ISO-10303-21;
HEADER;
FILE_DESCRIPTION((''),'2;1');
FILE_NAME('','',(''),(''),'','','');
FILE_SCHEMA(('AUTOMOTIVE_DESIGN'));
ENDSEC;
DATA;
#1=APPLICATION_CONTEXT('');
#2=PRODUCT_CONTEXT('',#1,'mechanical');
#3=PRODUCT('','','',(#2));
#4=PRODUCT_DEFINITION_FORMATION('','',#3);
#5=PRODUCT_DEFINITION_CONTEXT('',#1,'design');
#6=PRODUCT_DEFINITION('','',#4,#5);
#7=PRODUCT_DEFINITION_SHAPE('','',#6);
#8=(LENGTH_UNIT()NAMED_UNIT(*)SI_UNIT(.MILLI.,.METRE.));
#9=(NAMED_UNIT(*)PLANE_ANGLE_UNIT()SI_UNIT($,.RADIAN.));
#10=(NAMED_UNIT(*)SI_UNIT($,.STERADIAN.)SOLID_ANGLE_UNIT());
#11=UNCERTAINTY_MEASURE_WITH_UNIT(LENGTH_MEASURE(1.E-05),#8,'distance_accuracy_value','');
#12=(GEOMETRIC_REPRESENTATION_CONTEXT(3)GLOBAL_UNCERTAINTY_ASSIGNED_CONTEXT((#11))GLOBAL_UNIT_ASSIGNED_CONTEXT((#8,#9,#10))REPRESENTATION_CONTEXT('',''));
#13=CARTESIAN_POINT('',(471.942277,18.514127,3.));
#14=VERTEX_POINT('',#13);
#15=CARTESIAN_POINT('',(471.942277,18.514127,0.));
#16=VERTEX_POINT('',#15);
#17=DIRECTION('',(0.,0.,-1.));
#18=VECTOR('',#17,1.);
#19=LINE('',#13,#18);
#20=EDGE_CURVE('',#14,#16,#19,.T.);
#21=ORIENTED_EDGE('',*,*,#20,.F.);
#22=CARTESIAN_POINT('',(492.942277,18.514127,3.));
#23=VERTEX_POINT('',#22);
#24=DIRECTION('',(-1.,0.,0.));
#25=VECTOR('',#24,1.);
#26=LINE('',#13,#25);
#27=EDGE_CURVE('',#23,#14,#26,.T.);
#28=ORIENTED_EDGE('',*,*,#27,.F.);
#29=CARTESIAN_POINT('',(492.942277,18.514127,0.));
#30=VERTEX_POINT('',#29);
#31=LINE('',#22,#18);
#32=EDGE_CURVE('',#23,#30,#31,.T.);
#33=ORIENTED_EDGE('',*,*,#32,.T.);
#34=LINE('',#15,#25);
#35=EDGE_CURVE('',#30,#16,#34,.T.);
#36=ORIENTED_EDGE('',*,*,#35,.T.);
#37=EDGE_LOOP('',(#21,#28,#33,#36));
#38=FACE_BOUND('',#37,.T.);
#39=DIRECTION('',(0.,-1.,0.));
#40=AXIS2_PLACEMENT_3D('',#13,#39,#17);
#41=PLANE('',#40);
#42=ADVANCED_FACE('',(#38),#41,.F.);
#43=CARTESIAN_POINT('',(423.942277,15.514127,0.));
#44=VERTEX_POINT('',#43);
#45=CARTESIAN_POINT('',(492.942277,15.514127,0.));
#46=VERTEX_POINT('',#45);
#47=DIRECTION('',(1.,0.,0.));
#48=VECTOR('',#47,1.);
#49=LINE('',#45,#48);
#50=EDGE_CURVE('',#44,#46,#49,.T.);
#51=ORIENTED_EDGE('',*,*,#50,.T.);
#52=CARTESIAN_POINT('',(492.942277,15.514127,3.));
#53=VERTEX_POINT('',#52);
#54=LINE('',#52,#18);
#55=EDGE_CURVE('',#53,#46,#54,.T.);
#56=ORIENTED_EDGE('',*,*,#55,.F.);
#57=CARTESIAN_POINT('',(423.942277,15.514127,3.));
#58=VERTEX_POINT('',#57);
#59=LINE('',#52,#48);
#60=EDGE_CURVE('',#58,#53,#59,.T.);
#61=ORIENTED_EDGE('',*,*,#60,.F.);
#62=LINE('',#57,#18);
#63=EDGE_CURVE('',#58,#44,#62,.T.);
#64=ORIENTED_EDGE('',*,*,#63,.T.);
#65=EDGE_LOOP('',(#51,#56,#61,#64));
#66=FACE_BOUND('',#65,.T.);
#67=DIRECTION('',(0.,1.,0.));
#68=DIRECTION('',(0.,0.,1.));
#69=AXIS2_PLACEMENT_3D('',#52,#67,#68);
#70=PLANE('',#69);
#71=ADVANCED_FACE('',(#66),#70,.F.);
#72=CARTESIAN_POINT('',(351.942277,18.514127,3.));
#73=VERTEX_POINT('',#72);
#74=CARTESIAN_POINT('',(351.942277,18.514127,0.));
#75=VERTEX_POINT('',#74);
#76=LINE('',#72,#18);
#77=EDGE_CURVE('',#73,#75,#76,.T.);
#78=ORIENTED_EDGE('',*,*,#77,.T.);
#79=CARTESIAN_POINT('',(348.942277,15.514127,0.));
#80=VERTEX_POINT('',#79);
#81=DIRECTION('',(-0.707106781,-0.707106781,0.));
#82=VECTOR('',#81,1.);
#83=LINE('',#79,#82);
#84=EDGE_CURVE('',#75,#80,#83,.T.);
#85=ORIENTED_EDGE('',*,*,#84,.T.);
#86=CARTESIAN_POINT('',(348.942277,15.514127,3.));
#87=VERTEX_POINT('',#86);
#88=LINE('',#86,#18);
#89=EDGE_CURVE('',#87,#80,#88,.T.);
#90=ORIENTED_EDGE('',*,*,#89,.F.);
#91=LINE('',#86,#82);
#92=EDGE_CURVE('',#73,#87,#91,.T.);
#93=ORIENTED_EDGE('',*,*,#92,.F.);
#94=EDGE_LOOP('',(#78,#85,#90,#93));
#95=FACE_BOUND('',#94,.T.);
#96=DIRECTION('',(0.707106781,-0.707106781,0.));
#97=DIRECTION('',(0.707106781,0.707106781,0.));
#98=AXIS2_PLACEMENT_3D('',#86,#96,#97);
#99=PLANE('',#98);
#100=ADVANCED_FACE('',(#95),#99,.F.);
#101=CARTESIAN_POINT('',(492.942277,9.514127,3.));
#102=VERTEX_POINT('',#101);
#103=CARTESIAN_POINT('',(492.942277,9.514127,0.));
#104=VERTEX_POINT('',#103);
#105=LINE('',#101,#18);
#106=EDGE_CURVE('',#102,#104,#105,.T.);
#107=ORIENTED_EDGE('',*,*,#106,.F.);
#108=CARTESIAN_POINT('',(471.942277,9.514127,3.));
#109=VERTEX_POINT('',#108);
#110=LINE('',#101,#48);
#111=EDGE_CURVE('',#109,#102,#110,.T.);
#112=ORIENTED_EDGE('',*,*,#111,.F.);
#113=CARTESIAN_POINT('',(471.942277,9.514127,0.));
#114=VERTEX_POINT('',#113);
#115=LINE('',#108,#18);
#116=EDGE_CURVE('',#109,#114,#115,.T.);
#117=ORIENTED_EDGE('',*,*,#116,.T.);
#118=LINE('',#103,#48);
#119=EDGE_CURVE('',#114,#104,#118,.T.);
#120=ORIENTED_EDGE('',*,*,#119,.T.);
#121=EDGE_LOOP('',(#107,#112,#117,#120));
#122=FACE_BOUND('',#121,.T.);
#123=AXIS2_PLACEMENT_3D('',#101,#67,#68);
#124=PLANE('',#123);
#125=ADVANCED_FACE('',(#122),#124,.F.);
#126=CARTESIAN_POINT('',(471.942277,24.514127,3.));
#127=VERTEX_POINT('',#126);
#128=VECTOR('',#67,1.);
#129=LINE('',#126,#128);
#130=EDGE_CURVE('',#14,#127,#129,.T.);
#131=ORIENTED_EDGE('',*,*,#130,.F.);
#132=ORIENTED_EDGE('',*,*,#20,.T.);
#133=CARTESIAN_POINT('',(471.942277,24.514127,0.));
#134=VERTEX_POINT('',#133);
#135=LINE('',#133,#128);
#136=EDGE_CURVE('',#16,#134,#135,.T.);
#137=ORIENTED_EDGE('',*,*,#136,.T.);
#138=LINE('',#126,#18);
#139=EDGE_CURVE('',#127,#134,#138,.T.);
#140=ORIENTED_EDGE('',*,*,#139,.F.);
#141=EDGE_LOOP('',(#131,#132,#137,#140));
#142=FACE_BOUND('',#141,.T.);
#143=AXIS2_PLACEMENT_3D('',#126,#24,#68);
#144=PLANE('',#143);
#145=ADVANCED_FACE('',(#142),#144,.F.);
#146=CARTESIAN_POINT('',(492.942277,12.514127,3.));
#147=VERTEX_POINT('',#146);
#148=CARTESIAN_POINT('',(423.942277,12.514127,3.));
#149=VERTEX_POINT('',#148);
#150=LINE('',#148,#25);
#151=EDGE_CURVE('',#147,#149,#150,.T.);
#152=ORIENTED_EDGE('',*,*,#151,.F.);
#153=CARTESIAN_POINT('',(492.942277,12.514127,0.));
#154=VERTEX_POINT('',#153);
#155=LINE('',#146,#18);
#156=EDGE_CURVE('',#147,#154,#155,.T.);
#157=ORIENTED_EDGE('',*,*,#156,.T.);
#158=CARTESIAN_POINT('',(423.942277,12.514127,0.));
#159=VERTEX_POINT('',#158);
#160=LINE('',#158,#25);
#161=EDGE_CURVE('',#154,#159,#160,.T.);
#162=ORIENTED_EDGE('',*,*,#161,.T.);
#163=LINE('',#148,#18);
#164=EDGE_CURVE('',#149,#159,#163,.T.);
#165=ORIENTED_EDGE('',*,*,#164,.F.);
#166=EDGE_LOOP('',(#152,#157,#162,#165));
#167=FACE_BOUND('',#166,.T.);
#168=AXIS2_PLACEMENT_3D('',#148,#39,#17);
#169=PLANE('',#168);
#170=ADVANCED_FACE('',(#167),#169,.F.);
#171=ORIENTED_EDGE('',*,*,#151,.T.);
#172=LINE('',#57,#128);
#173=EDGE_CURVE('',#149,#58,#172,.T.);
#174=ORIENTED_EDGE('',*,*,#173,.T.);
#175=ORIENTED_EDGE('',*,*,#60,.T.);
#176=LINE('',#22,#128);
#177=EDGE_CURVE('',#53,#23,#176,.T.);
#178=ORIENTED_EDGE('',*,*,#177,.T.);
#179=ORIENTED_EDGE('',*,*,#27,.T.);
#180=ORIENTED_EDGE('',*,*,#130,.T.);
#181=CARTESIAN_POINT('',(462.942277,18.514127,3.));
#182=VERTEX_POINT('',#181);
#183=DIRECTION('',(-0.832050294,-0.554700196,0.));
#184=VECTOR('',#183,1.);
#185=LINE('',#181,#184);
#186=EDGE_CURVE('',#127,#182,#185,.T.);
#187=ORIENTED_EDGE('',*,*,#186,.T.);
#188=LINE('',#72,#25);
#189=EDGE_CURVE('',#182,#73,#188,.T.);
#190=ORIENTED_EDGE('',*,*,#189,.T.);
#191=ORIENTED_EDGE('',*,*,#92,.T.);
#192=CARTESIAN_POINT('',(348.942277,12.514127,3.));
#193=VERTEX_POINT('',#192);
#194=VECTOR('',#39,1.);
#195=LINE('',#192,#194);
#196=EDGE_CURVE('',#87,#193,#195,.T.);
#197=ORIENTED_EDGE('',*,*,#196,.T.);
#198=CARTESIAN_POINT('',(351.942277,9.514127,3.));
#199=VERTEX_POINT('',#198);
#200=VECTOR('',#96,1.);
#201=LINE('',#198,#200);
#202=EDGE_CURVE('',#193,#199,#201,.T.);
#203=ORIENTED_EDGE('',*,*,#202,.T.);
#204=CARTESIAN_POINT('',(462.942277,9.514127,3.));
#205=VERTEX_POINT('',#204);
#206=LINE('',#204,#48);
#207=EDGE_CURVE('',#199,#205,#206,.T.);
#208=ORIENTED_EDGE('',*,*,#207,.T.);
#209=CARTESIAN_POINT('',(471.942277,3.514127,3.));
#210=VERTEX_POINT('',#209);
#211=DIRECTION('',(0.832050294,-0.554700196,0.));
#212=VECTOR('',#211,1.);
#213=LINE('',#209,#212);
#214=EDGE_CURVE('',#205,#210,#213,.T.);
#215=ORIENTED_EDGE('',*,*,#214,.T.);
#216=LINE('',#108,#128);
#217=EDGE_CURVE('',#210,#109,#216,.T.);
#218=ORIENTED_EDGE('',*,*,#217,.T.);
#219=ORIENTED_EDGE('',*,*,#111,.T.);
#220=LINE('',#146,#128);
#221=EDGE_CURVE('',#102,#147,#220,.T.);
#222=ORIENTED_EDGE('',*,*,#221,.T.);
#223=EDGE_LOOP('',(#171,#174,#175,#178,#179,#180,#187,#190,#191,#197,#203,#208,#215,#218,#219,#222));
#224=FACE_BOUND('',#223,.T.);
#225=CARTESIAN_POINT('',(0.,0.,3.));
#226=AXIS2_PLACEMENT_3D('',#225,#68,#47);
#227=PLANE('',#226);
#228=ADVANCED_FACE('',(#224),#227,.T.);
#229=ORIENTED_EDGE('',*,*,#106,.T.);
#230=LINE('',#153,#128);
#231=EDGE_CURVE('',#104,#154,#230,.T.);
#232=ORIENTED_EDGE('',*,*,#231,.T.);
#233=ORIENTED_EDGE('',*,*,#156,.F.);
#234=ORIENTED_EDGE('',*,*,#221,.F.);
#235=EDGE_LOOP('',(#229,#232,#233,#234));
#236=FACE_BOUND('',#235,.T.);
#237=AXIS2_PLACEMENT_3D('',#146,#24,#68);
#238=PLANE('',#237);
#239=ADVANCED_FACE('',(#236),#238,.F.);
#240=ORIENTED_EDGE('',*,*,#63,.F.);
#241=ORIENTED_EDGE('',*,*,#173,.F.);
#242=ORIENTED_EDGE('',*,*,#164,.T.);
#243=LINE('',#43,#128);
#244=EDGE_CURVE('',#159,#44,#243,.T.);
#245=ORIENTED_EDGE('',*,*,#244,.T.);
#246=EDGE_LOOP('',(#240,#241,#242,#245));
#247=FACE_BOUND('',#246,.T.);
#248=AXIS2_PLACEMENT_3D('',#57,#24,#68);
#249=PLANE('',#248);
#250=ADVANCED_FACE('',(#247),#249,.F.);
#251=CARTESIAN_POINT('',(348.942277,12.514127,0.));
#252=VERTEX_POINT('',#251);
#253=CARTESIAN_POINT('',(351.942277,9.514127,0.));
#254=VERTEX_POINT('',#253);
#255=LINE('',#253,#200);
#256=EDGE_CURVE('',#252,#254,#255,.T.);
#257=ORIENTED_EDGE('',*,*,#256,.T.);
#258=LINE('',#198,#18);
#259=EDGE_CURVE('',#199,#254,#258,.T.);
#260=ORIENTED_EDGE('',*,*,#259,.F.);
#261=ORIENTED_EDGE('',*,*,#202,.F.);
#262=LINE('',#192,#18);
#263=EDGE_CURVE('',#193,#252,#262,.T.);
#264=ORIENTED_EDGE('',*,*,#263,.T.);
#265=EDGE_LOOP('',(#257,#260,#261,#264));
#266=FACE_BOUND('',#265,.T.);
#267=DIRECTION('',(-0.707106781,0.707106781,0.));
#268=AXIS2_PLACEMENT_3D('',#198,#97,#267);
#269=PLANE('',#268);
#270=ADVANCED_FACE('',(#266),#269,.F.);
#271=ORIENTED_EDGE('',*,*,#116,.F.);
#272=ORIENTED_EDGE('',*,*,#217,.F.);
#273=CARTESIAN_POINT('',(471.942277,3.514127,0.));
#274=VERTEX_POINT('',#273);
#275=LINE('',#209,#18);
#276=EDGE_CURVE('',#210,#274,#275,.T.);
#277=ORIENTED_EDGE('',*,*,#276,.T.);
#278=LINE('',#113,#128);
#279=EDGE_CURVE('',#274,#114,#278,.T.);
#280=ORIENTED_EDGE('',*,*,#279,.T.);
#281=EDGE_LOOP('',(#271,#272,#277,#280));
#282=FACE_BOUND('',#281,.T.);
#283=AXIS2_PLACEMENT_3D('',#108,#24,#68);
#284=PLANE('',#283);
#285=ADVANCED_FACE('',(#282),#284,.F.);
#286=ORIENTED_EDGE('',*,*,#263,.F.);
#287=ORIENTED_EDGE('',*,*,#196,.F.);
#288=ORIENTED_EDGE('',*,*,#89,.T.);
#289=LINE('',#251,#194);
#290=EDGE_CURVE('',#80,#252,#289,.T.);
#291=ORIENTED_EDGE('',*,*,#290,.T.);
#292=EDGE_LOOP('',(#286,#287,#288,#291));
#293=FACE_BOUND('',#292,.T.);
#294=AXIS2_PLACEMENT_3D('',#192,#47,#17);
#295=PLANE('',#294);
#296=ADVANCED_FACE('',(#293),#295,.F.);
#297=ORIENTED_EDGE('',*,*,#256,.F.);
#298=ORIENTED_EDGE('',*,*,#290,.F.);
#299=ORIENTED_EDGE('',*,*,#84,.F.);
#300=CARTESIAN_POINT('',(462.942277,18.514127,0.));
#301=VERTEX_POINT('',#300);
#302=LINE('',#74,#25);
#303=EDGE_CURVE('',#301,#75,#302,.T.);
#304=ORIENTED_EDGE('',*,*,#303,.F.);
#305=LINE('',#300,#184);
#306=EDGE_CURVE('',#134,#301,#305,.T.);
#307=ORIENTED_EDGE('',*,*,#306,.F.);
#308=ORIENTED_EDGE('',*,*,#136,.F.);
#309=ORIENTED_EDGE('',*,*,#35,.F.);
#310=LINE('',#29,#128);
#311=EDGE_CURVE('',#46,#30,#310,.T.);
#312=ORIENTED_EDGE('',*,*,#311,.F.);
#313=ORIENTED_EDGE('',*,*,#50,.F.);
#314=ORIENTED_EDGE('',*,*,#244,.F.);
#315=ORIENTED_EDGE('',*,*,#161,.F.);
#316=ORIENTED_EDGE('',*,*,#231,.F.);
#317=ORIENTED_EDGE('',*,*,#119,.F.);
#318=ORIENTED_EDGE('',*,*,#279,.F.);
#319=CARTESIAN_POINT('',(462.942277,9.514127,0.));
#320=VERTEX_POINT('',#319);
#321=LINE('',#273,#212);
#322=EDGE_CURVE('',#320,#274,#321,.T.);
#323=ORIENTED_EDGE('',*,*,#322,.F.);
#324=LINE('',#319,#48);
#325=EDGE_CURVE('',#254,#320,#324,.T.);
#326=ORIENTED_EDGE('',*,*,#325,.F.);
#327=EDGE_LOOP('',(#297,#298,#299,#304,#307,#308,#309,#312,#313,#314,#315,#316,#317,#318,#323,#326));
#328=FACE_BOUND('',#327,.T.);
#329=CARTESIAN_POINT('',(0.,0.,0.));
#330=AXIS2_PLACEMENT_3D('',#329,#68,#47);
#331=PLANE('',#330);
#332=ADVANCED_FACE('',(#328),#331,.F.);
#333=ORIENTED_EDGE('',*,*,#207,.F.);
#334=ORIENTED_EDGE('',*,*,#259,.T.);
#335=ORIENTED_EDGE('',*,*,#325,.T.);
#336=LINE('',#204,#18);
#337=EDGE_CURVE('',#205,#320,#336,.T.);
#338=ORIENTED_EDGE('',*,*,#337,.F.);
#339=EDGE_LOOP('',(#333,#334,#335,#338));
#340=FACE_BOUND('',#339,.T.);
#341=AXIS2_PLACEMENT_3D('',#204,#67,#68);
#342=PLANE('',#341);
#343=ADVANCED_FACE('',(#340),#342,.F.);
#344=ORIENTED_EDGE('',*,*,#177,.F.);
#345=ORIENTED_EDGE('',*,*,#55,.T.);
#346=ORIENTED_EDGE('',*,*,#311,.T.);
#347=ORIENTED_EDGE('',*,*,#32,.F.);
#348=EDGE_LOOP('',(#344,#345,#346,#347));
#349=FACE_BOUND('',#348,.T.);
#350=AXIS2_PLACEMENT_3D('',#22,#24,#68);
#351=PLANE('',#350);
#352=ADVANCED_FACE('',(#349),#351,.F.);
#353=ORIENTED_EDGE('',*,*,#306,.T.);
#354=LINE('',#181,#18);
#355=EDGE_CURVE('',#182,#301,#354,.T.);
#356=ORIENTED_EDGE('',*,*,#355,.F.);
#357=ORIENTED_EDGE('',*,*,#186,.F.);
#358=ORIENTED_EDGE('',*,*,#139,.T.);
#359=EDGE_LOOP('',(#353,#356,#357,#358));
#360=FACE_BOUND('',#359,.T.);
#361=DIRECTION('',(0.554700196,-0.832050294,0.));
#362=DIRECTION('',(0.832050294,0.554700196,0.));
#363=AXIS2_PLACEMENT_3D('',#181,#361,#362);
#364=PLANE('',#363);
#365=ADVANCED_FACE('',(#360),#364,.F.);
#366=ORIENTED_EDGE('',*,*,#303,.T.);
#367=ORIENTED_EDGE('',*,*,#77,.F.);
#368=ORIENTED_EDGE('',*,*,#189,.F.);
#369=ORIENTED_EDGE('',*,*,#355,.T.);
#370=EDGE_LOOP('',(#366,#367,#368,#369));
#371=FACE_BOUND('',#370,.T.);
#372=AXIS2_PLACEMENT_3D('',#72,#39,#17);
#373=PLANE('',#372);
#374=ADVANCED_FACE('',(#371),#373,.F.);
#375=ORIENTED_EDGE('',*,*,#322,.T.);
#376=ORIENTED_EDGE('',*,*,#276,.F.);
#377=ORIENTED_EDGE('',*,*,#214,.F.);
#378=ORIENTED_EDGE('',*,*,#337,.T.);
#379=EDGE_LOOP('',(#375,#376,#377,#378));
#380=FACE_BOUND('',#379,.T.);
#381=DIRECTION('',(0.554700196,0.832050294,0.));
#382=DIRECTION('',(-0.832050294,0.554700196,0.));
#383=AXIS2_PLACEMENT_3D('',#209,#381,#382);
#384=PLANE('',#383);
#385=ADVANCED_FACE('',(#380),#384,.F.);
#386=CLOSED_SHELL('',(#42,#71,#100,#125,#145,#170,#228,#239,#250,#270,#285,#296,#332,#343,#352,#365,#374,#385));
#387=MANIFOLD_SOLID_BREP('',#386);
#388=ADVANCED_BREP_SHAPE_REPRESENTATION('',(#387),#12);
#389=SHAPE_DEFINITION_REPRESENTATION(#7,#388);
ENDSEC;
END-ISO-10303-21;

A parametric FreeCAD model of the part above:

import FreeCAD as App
import Part
import Sketcher

doc = App.newDocument("Part")
body = doc.addObject("PartDesign::Body", "Body")

# Sketch on XY plane
sketch1 = doc.addObject("Sketcher::SketchObject", "Sketch")
body.addObject(sketch1)
sketch1.AttachmentSupport = (doc.XY_Plane, [""])
sketch1.MapMode = "FlatFace"
sketch1.addGeometry([
    Part.LineSegment(App.Vector(471.942277, 3.514127, 0), App.Vector(471.942277, 9.514127, 0)),  # 0
    Part.LineSegment(App.Vector(471.942277, 9.514127, 0), App.Vector(492.942277, 9.514127, 0)),  # 1
    Part.LineSegment(App.Vector(492.942277, 9.514127, 0), App.Vector(492.942277, 12.514127, 0)),  # 2
    Part.LineSegment(App.Vector(492.942277, 12.514127, 0), App.Vector(423.942277, 12.514127, 0)),  # 3
    Part.LineSegment(App.Vector(423.942277, 12.514127, 0), App.Vector(423.942277, 15.514127, 0)),  # 4
    Part.LineSegment(App.Vector(423.942277, 15.514127, 0), App.Vector(492.942277, 15.514127, 0)),  # 5
    Part.LineSegment(App.Vector(492.942277, 15.514127, 0), App.Vector(492.942277, 18.514127, 0)),  # 6
    Part.LineSegment(App.Vector(492.942277, 18.514127, 0), App.Vector(471.942277, 18.514127, 0)),  # 7
    Part.LineSegment(App.Vector(471.942277, 18.514127, 0), App.Vector(471.942277, 24.514127, 0)),  # 8
    Part.LineSegment(App.Vector(471.942277, 24.514127, 0), App.Vector(462.942277, 18.514127, 0)),  # 9
    Part.LineSegment(App.Vector(462.942277, 18.514127, 0), App.Vector(351.942277, 18.514127, 0)),  # 10
    Part.LineSegment(App.Vector(351.942277, 18.514127, 0), App.Vector(348.942277, 15.514127, 0)),  # 11
    Part.LineSegment(App.Vector(348.942277, 15.514127, 0), App.Vector(348.942277, 12.514127, 0)),  # 12
    Part.LineSegment(App.Vector(348.942277, 12.514127, 0), App.Vector(351.942277, 9.514127, 0)),  # 13
    Part.LineSegment(App.Vector(351.942277, 9.514127, 0), App.Vector(462.942277, 9.514127, 0)),  # 14
    Part.LineSegment(App.Vector(462.942277, 9.514127, 0), App.Vector(471.942277, 3.514127, 0)),  # 15
], False)
sketch1.addConstraint([
    Sketcher.Constraint("Coincident", 0, 2, 1, 1),
    Sketcher.Constraint("Coincident", 1, 2, 2, 1),
    Sketcher.Constraint("Coincident", 2, 2, 3, 1),
    Sketcher.Constraint("Coincident", 3, 2, 4, 1),
    Sketcher.Constraint("Coincident", 4, 2, 5, 1),
    Sketcher.Constraint("Coincident", 5, 2, 6, 1),
    Sketcher.Constraint("Coincident", 6, 2, 7, 1),
    Sketcher.Constraint("Coincident", 7, 2, 8, 1),
    Sketcher.Constraint("Coincident", 8, 2, 9, 1),
    Sketcher.Constraint("Coincident", 9, 2, 10, 1),
    Sketcher.Constraint("Coincident", 10, 2, 11, 1),
    Sketcher.Constraint("Coincident", 11, 2, 12, 1),
    Sketcher.Constraint("Coincident", 12, 2, 13, 1),
    Sketcher.Constraint("Coincident", 13, 2, 14, 1),
    Sketcher.Constraint("Coincident", 14, 2, 15, 1),
    Sketcher.Constraint("Coincident", 15, 2, 0, 1),
    Sketcher.Constraint("Vertical", 0),
    Sketcher.Constraint("Horizontal", 1),
    Sketcher.Constraint("Vertical", 2),
    Sketcher.Constraint("Horizontal", 3),
    Sketcher.Constraint("Vertical", 4),
    Sketcher.Constraint("Horizontal", 5),
    Sketcher.Constraint("Vertical", 6),
    Sketcher.Constraint("Horizontal", 7),
    Sketcher.Constraint("Vertical", 8),
    Sketcher.Constraint("Horizontal", 10),
    Sketcher.Constraint("Vertical", 12),
    Sketcher.Constraint("Horizontal", 14),
    Sketcher.Constraint("Perpendicular", 11, 13),
    Sketcher.Constraint("Horizontal", 7, 2, 9, 2),
    Sketcher.Constraint("Horizontal", 5, 2, 11, 2),
    Sketcher.Constraint("Horizontal", 3, 2, 12, 2),
    Sketcher.Constraint("Horizontal", 1, 2, 13, 2),
    Sketcher.Constraint("Vertical", 2, 2, 5, 2),
    Sketcher.Constraint("Vertical", 0, 2, 7, 2),
    Sketcher.Constraint("Vertical", 10, 2, 13, 2),
    Sketcher.Constraint("Vertical", 9, 2, 14, 2),
    Sketcher.Constraint("Equal", 2, 4),
    Sketcher.Constraint("Equal", 4, 6),
    Sketcher.Constraint("Equal", 0, 8),
    Sketcher.Constraint("DistanceX", 1, 1, 1, 2, 21.0),
    Sketcher.Constraint("DistanceX", 3, 2, 3, 1, 69.0),
    Sketcher.Constraint("DistanceX", 10, 2, 10, 1, 111.0),
    Sketcher.Constraint("DistanceY", 0, 1, 0, 2, 6.0),
    Sketcher.Constraint("DistanceY", 2, 1, 2, 2, 3.0),
    Sketcher.Constraint("DistanceX", 9, 2, 7, 2, 9.0),
    Sketcher.Constraint("DistanceX", -1, 1, 0, 2, 471.942277),
    Sketcher.Constraint("DistanceY", -1, 1, 0, 2, 9.514127),
])
pad1 = doc.addObject("PartDesign::Pad", "Pad")
body.addObject(pad1)
pad1.Profile = sketch1
pad1.Length = 3

doc.recompute()
